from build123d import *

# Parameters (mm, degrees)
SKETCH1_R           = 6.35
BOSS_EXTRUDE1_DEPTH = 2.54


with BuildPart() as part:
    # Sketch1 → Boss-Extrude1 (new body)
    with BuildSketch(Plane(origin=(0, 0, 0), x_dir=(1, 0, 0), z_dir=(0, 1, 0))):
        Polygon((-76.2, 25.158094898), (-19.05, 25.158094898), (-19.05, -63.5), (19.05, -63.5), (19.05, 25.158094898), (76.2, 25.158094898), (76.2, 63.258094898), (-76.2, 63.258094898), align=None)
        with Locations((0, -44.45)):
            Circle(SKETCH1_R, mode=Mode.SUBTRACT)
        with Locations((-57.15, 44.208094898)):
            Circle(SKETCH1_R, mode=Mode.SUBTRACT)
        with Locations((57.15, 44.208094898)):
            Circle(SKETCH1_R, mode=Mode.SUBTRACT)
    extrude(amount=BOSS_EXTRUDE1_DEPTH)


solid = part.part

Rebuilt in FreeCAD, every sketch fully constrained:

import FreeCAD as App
import Part
import Sketcher
Q = App.Units.Quantity


def add_polygon(sketch, points):
    """Adds a closed chain of lines whose ends are joined by coincident constraints."""
    first, n = sketch.GeometryCount, len(points)
    for a, b in zip(points, points[1:] + points[:1]):
        sketch.addGeometry(Part.LineSegment(App.Vector(*a, 0), App.Vector(*b, 0)), False)
    for i in range(n):
        sketch.addConstraint(Sketcher.Constraint("Coincident", first + i, 2, first + (i + 1) % n, 1))

doc = App.newDocument("Part")
body = doc.addObject("PartDesign::Body", "Body")

sketch1 = doc.addObject("Sketcher::SketchObject", "Sketch")
body.addObject(sketch1)
sketch1.AttachmentSupport = (doc.XZ_Plane, [""])
sketch1.MapMode = "FlatFace"
add_polygon(sketch1, [(-76, -25), (-19, -25), (-19, 64), (19, 64), (19, -25), (76, -25), (76, -63), (-76, -63)])
sketch1.addGeometry(Part.Circle(App.Vector(0, 44, 0), App.Vector(0, 0, 1), 6), False)
sketch1.addGeometry(Part.Circle(App.Vector(-57, -44, 0), App.Vector(0, 0, 1), 6), False)
sketch1.addGeometry(Part.Circle(App.Vector(57, -44, 0), App.Vector(0, 0, 1), 6), False)
sketch1.addConstraint([
    Sketcher.Constraint("Horizontal", 0),
    Sketcher.Constraint("Vertical", 1),
    Sketcher.Constraint("Horizontal", 2),
    Sketcher.Constraint("Vertical", 3),
    Sketcher.Constraint("Horizontal", 4),
    Sketcher.Constraint("Vertical", 5),
    Sketcher.Constraint("Horizontal", 6),
    Sketcher.Constraint("Vertical", 7),
    Sketcher.Constraint("Equal", 8, 9),
    Sketcher.Constraint("Equal", 9, 10),
    Sketcher.Constraint("Symmetric", 9, 3, 10, 3, -2),
    Sketcher.Constraint("Symmetric", 0, 2, 3, 2, -2),
    Sketcher.Constraint("PointOnObject", 8, 3, -2),
    Sketcher.Constraint("Equal", 0, 4),
    Sketcher.Constraint("Equal", 2, 5),
    Sketcher.Constraint("Diameter", 8, Q("0.5 in")),
    Sketcher.Constraint("DistanceX", 6, 2, 6, 1, Q("6 in")),
    Sketcher.Constraint("DistanceX", 2, 1, 2, 2, Q("1.5 in")),
    Sketcher.Constraint("DistanceX", 0, 2, 10, 3, Q("3 in")),
    Sketcher.Constraint("DistanceY", -1, 1, 1, 2, Q("2.5 in")),
    Sketcher.Constraint("DistanceY", -1, 1, 8, 3, Q("1.75 in")),
    Sketcher.Constraint("DistanceY", 9, 3, 0, 2, Q("0.75 in")),
    Sketcher.Constraint("DistanceY", 1, 1, 1, 2, 88.658095),
])
pad1 = doc.addObject("PartDesign::Pad", "Pad")
body.addObject(pad1)
pad1.Profile = sketch1
pad1.Length = Q("0.1 in")
pad1.Reversed = True

doc.recompute()
